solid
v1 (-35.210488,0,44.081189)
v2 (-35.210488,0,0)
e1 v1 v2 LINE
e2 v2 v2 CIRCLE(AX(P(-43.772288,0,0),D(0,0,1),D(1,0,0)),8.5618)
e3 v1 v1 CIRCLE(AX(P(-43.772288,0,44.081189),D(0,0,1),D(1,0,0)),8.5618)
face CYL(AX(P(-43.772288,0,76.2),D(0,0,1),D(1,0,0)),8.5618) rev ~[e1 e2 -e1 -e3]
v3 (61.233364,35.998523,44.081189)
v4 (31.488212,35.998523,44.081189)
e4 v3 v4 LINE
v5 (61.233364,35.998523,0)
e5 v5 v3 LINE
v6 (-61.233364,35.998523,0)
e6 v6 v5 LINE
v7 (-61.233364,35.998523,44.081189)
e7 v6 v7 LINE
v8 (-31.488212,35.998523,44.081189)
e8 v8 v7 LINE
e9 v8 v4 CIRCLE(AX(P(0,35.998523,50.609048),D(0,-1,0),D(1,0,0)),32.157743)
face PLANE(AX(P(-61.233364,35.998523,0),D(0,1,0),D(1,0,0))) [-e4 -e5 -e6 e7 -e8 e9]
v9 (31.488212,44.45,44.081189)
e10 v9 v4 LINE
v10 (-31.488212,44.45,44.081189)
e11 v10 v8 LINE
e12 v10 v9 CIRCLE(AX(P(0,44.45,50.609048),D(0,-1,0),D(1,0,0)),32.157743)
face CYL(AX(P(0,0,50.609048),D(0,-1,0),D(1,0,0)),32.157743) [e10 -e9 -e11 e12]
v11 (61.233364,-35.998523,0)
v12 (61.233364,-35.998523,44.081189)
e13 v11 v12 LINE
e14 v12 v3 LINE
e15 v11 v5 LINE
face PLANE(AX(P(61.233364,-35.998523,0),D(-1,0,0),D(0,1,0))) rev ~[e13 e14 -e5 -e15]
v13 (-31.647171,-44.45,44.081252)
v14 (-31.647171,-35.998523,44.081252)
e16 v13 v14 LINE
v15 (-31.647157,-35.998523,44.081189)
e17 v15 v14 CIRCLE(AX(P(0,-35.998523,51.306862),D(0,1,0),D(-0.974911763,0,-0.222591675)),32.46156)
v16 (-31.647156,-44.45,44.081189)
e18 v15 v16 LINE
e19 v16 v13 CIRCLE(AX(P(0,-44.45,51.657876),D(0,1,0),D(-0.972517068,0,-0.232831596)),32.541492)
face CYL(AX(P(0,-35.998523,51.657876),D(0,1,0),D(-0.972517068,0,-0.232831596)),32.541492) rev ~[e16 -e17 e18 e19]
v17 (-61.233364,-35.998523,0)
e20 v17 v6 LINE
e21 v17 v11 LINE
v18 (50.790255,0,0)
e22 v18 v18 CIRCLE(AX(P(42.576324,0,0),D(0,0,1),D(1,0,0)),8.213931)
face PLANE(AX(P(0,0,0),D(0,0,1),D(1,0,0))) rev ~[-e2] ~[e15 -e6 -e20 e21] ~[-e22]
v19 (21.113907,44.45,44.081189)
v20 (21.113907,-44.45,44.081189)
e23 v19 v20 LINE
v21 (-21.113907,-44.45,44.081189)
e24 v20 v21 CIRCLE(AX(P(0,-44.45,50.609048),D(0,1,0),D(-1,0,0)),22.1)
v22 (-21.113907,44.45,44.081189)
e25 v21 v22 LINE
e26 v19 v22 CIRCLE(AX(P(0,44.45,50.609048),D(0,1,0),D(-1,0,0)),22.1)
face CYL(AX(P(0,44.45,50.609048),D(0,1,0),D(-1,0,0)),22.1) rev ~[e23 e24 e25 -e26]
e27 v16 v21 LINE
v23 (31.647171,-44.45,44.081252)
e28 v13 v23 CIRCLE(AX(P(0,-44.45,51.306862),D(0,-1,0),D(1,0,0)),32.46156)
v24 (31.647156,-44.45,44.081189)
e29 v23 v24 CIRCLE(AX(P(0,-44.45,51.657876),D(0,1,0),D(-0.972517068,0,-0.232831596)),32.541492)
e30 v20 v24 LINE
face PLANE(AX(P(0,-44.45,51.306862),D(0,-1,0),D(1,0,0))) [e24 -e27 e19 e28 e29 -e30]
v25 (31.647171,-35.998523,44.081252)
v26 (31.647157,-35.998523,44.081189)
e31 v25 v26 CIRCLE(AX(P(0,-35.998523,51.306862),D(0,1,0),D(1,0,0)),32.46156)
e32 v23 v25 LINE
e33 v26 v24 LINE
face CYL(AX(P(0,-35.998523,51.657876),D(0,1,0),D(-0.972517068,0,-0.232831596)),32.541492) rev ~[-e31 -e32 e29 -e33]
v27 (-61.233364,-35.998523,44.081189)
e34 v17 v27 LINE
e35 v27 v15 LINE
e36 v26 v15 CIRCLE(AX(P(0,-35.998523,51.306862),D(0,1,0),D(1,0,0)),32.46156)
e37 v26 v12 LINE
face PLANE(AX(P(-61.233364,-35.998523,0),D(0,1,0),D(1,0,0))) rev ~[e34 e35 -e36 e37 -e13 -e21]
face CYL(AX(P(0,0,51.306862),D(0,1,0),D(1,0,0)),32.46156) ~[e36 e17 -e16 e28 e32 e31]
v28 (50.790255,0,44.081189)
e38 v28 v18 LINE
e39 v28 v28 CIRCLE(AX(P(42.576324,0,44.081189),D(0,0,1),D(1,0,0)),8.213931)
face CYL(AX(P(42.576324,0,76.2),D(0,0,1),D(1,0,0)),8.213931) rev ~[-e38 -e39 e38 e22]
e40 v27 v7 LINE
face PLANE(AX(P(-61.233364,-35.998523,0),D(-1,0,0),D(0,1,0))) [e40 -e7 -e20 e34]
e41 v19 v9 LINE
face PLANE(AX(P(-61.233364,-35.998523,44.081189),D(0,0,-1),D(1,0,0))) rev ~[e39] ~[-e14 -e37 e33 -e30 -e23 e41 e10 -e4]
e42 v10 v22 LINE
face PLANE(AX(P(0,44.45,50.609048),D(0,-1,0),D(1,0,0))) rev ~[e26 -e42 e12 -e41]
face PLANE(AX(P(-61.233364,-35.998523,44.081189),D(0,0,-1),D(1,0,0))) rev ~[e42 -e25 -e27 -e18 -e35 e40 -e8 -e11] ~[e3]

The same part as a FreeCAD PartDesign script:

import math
import FreeCAD as App
import Part
import Sketcher
Q = App.Units.Quantity


def add_polygon(sketch, points):
    """Adds a closed chain of lines whose ends are joined by coincident constraints."""
    first, n = sketch.GeometryCount, len(points)
    for a, b in zip(points, points[1:] + points[:1]):
        sketch.addGeometry(Part.LineSegment(App.Vector(*a, 0), App.Vector(*b, 0)), False)
    for i in range(n):
        sketch.addConstraint(Sketcher.Constraint("Coincident", first + i, 2, first + (i + 1) % n, 1))

doc = App.newDocument("Part")
body = doc.addObject("PartDesign::Body", "Body")

# Sketch on XY plane
sketch1 = body.newObject("Sketcher::SketchObject", "Sketch")
sketch1.AttachmentSupport = (doc.getObject("XY_Plane"), [""])
sketch1.MapMode = "FlatFace"
add_polygon(sketch1, [(-61.233364, 35.998523), (-61.233364, -35.998523), (61.233364, -35.998523), (61.233364, 35.998523)])  # lines 0-3
sketch1.addConstraint(Sketcher.Constraint("Vertical", 0))
sketch1.addConstraint(Sketcher.Constraint("Horizontal", 1))
sketch1.addConstraint(Sketcher.Constraint("Vertical", 2))
sketch1.addConstraint(Sketcher.Constraint("Horizontal", 3))
sketch1.addConstraint(Sketcher.Constraint("Symmetric", 0, 2, 2, 2, -1, 1))
sketch1.addConstraint(Sketcher.Constraint("DistanceX", 1, 1, 1, 2, 122.466728))
sketch1.addConstraint(Sketcher.Constraint("DistanceY", 0, 2, 0, 1, 71.997046))
pad1 = body.newObject("PartDesign::Pad", "Pad")
pad1.Profile = sketch1
pad1.Length = Q("3 in")

# Sketch on XZ plane
sketch2 = body.newObject("Sketcher::SketchObject", "Sketch001")
sketch2.AttachmentSupport = (doc.getObject("XZ_Plane"), [""])
sketch2.MapMode = "FlatFace"
sketch2.addGeometry(Part.Circle(App.Vector(0, 51.306862, 0), App.Vector(0, 0, 1), 32.46156), False)
sketch2.addConstraint(Sketcher.Constraint("PointOnObject", 0, 3, -2))
sketch2.addConstraint(Sketcher.Constraint("Diameter", 0, 64.92312))
sketch2.addConstraint(Sketcher.Constraint("DistanceY", -1, 1, 0, 3, 51.306862))
pad2 = body.newObject("PartDesign::Pad", "Pad001")
pad2.Profile = sketch2
pad2.Length = Q("1.75 in")

# Sketch on XZ plane
sketch3 = body.newObject("Sketcher::SketchObject", "Sketch002")
sketch3.AttachmentSupport = (doc.getObject("XZ_Plane"), [""])
sketch3.MapMode = "FlatFace"
sketch3.addGeometry(Part.Circle(App.Vector(0, 50.609048, 0), App.Vector(0, 0, 1), 32.157743), False)
sketch3.addConstraint(Sketcher.Constraint("PointOnObject", 0, 3, -2))
sketch3.addConstraint(Sketcher.Constraint("Diameter", 0, 64.315486))
sketch3.addConstraint(Sketcher.Constraint("DistanceY", -1, 1, 0, 3, 50.609048))
pad3 = body.newObject("PartDesign::Pad", "Pad002")
pad3.Profile = sketch3
pad3.Length = Q("1.75 in")
pad3.Reversed = True

# Sketch on XZ plane
sketch4 = body.newObject("Sketcher::SketchObject", "Sketch003")
sketch4.AttachmentSupport = (doc.getObject("XZ_Plane"), [""])
sketch4.MapMode = "FlatFace"
sketch4.AttachmentOffset = App.Placement(App.Vector(0, 0, -1.75 * 25.4), App.Rotation())
sketch4.addGeometry(Part.Circle(App.Vector(0, 50.609048, 0), App.Vector(0, 0, 1), 22.1), False)
sketch4.addConstraint(Sketcher.Constraint("PointOnObject", 0, 3, -2))
sketch4.addConstraint(Sketcher.Constraint("Diameter", 0, 44.2))
sketch4.addConstraint(Sketcher.Constraint("DistanceY", -1, 1, 0, 3, 50.609048))
pocket1 = body.newObject("PartDesign::Pocket", "Pocket")
pocket1.Profile = sketch4
pocket1.Type = "ThroughAll"
pocket1.Reversed = True

# Sketch on XY plane
sketch5 = body.newObject("Sketcher::SketchObject", "Sketch004")
sketch5.AttachmentSupport = (doc.getObject("XY_Plane"), [""])
sketch5.MapMode = "FlatFace"
sketch5.AttachmentOffset = App.Placement(App.Vector(0, 0, 3 * 25.4), App.Rotation())
sketch5.addGeometry(Part.Circle(App.Vector(-43.772288, 0, 0), App.Vector(0, 0, 1), 8.5618), False)
sketch5.addGeometry(Part.Circle(App.Vector(42.576324, 0, 0), App.Vector(0, 0, 1), 8.213931), False)
sketch5.addConstraint(Sketcher.Constraint("PointOnObject", 0, 3, -1))
sketch5.addConstraint(Sketcher.Constraint("PointOnObject", 1, 3, -1))
sketch5.addConstraint(Sketcher.Constraint("Diameter", 0, 17.1236))
sketch5.addConstraint(Sketcher.Constraint("Diameter", 1, 16.427862))
sketch5.addConstraint(Sketcher.Constraint("DistanceX", 0, 3, -1, 1, 43.772288))
sketch5.addConstraint(Sketcher.Constraint("DistanceX", -1, 1, 1, 3, 42.576324))
pocket2 = body.newObject("PartDesign::Pocket", "Pocket001")
pocket2.Profile = sketch5
pocket2.Type = "ThroughAll"

# Sketch on XZ plane
sketch6 = body.newObject("Sketcher::SketchObject", "Sketch005")
sketch6.AttachmentSupport = (doc.getObject("XZ_Plane"), [""])
sketch6.MapMode = "FlatFace"
sketch6.AttachmentOffset = App.Placement(App.Vector(0, 0, 35.998523), App.Rotation())
add_polygon(sketch6, [(-61.233364, 84.503703), (-61.233364, 44.081189), (61.233364, 44.081189), (61.233364, 84.503703)])  # lines 0-3
sketch6.addConstraint(Sketcher.Constraint("Vertical", 0))
sketch6.addConstraint(Sketcher.Constraint("Horizontal", 1))
sketch6.addConstraint(Sketcher.Constraint("Vertical", 2))
sketch6.addConstraint(Sketcher.Constraint("Horizontal", 3))
sketch6.addConstraint(Sketcher.Constraint("DistanceX", 1, 1, 1, 2, 122.466728))
sketch6.addConstraint(Sketcher.Constraint("DistanceY", 0, 2, 0, 1, 40.422514))
sketch6.addConstraint(Sketcher.Constraint("DistanceY", -1, 1, 0, 2, 44.081189))
sketch6.addConstraint(Sketcher.Constraint("DistanceX", 0, 2, -1, 1, 61.233364))
pocket3 = body.newObject("PartDesign::Pocket", "Pocket002")
pocket3.Profile = sketch6
pocket3.Type = "ThroughAll"

# Sketch on XZ plane
sketch7 = body.newObject("Sketcher::SketchObject", "Sketch006")
sketch7.AttachmentSupport = (doc.getObject("XZ_Plane"), [""])
sketch7.MapMode = "FlatFace"
sketch7.AttachmentOffset = App.Placement(App.Vector(0, 0, 35.998523), App.Rotation())
add_polygon(sketch7, [(-61.233364, 85.34421), (-61.233364, 44.081189), (61.53179, 44.081189), (61.53179, 85.34421)])  # lines 0-3
sketch7.addConstraint(Sketcher.Constraint("Vertical", 0))
sketch7.addConstraint(Sketcher.Constraint("Horizontal", 1))
sketch7.addConstraint(Sketcher.Constraint("Vertical", 2))
sketch7.addConstraint(Sketcher.Constraint("Horizontal", 3))
sketch7.addConstraint(Sketcher.Constraint("DistanceY", 0, 2, 0, 1, 41.263021))
sketch7.addConstraint(Sketcher.Constraint("DistanceX", 1, 1, 1, 2, 122.765154))
sketch7.addConstraint(Sketcher.Constraint("DistanceY", -1, 1, 0, 2, 44.081189))
sketch7.addConstraint(Sketcher.Constraint("DistanceX", -1, 1, 1, 2, 61.53179))
pocket4 = body.newObject("PartDesign::Pocket", "Pocket003")
pocket4.Profile = sketch7
pocket4.Type = "ThroughAll"

# Sketch on XZ plane
sketch8 = body.newObject("Sketcher::SketchObject", "Sketch007")
sketch8.AttachmentSupport = (doc.getObject("XZ_Plane"), [""])
sketch8.MapMode = "FlatFace"
sketch8.AttachmentOffset = App.Placement(App.Vector(0, 0, 35.998523), App.Rotation())
sketch8.addGeometry(Part.LineSegment(App.Vector(31.647156, 44.081189, 0), App.Vector(-31.647156, 44.081189, 0)), False)
sketch8.addGeometry(Part.ArcOfCircle(Part.Circle(App.Vector(0, 51.657876, 0), App.Vector(0, 0, 1), 32.541492), math.radians(-13.463837), math.radians(193.463837)), False)
sketch8.addConstraint(Sketcher.Constraint("Coincident", 0, 1, 1, 1))
sketch8.addConstraint(Sketcher.Constraint("Coincident", 1, 2, 0, 2))
sketch8.addConstraint(Sketcher.Constraint("Horizontal", 0))
sketch8.addConstraint(Sketcher.Constraint("PointOnObject", 1, 3, -2))
sketch8.addConstraint(Sketcher.Constraint("Radius", 1, 32.541492))
sketch8.addConstraint(Sketcher.Constraint("DistanceX", 0, 2, 0, 1, 63.294312))
sketch8.addConstraint(Sketcher.Constraint("DistanceY", -1, 1, 0, 1, 44.081189))
pocket5 = body.newObject("PartDesign::Pocket", "Pocket004")
pocket5.Profile = sketch8
pocket5.Type = "ThroughAll"
pocket5.Reversed = True

doc.recompute()
